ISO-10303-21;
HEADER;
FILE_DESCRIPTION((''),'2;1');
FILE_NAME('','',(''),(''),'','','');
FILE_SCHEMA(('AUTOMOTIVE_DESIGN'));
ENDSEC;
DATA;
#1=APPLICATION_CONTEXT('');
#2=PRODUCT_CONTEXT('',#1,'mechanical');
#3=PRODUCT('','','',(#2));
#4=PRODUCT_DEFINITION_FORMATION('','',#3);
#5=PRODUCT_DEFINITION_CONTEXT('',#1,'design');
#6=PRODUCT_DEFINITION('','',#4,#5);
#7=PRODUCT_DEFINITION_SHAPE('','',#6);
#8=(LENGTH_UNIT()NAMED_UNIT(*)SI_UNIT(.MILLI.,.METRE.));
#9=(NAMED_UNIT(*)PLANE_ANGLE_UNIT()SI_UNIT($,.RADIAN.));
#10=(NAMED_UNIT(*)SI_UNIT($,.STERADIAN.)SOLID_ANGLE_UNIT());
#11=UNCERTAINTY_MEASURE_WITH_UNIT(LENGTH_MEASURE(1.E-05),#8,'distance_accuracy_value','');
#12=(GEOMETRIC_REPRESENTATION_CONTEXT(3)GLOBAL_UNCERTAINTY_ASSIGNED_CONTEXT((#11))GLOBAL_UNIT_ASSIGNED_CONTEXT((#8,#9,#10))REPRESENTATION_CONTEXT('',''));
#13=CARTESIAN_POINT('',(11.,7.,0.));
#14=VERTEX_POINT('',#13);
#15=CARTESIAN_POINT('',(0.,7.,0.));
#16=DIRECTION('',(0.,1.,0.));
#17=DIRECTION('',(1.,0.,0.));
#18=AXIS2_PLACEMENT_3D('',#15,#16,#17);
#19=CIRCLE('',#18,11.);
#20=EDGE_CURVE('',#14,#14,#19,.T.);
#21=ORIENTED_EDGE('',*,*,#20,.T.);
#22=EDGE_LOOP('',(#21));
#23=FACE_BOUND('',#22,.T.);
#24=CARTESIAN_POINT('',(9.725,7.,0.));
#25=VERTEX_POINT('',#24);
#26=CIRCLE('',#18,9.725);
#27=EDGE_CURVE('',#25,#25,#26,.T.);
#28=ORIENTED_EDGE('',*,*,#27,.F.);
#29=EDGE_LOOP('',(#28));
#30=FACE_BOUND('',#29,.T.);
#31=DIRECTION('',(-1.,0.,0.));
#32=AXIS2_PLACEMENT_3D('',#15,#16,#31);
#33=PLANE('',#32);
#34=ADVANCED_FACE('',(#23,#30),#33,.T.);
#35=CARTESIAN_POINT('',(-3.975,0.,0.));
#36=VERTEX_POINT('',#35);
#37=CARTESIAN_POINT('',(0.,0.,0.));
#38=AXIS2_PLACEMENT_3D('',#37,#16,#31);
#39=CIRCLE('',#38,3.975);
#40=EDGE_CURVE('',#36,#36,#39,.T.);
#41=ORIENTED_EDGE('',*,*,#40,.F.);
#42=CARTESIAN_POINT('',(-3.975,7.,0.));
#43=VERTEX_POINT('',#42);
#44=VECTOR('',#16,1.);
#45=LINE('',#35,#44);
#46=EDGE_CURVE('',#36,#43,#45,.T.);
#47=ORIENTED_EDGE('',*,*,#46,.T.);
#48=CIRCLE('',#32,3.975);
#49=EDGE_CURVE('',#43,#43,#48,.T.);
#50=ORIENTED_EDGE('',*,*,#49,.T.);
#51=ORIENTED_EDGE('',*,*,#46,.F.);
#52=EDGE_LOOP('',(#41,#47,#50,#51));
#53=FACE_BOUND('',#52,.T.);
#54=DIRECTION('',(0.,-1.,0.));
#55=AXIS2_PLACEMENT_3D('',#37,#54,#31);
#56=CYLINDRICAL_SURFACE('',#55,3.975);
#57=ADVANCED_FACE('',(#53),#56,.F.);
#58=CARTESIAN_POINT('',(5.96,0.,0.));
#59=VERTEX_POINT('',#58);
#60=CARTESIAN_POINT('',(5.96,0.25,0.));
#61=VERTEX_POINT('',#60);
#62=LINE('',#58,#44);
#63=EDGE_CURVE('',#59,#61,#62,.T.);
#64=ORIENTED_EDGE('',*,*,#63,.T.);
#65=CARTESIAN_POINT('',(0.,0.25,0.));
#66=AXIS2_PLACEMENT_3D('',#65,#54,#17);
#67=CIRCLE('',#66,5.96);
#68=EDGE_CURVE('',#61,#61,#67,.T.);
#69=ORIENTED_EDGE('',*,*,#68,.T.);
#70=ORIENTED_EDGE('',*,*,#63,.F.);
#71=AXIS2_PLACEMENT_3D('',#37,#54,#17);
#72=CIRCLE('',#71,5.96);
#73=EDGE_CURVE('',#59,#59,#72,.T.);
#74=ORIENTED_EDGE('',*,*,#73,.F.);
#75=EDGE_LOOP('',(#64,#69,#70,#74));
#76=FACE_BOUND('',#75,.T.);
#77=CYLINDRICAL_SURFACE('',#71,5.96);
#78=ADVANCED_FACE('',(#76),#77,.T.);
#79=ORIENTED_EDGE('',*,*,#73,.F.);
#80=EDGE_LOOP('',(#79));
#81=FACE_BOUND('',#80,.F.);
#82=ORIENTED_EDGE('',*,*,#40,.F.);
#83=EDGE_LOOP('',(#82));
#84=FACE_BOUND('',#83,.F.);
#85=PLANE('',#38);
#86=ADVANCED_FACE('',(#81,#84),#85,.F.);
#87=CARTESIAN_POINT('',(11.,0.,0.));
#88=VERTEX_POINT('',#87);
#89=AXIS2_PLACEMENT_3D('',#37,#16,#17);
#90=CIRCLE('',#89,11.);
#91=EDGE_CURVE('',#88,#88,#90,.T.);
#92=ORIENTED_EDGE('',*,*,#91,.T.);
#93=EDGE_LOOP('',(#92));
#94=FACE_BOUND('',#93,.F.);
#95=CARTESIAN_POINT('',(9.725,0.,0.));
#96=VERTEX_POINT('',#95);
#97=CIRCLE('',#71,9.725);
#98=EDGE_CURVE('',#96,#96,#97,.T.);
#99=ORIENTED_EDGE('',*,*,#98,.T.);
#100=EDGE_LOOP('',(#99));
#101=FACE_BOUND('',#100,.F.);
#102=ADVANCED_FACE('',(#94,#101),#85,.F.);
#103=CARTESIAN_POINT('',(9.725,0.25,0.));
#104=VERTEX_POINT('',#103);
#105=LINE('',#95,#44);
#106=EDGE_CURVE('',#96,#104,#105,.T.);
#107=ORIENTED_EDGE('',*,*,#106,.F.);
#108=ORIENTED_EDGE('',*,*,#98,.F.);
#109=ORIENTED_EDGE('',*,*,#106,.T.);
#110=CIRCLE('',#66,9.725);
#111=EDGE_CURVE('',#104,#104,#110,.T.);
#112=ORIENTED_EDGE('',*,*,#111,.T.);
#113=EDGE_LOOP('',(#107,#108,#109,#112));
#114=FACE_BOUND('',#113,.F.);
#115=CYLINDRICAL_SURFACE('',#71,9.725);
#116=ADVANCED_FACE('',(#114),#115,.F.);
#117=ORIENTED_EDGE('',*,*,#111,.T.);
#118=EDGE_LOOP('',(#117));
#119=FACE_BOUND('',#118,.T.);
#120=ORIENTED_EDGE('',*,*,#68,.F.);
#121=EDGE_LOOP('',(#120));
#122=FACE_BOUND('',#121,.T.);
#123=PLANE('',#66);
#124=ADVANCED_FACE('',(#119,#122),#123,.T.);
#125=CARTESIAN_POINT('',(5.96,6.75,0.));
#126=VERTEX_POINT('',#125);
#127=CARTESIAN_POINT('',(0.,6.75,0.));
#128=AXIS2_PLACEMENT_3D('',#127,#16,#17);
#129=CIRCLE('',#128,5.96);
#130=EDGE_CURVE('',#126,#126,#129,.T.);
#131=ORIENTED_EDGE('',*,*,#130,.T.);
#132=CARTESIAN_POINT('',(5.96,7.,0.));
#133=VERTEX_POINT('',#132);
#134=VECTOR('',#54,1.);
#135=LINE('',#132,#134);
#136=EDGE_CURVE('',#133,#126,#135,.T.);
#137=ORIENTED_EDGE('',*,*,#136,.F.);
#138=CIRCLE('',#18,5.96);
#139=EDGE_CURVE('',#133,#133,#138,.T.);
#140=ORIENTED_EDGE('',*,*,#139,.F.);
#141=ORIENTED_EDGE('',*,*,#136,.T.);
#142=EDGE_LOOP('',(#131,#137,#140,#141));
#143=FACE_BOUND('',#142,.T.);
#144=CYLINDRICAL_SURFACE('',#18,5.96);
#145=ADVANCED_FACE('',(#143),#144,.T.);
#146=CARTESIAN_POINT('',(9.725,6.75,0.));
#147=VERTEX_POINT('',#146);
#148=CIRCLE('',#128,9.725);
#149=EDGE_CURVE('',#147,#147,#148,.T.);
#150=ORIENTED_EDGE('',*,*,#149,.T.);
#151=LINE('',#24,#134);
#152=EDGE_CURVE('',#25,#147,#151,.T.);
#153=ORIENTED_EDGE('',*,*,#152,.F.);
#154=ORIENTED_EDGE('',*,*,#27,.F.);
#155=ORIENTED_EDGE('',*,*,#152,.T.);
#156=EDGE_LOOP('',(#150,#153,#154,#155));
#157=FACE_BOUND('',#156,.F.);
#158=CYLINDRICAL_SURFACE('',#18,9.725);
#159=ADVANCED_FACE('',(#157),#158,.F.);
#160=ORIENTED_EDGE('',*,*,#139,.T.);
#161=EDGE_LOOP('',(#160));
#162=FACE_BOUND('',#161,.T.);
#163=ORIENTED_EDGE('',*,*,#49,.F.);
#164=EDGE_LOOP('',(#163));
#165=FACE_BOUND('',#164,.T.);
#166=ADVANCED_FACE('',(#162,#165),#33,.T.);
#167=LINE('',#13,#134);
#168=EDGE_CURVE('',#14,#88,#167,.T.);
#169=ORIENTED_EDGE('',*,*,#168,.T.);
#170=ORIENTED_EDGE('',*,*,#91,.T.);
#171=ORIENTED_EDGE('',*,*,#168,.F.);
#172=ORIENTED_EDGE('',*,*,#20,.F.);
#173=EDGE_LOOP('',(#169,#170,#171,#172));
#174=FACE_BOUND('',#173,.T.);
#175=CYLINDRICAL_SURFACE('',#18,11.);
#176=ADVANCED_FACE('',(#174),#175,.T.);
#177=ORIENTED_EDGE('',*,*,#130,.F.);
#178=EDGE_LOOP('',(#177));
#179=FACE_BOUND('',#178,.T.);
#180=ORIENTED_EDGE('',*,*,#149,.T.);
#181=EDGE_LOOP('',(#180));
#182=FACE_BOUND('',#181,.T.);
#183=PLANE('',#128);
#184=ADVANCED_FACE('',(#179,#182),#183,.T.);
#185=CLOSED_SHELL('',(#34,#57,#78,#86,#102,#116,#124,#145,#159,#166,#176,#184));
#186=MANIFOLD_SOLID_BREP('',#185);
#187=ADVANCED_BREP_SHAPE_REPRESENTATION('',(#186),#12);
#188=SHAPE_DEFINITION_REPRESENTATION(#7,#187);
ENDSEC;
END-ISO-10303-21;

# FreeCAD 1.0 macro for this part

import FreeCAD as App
import Part
import Sketcher
from FreeCAD import Vector
Q = App.Units.Quantity

doc = App.newDocument("Part")
body = doc.addObject("PartDesign::Body", "Body")

# Sketch on XZ plane
sketch1 = body.newObject("Sketcher::SketchObject", "Sketch")
sketch1.AttachmentSupport = (doc.getObject("XZ_Plane"), [""])
sketch1.MapMode = "FlatFace"
sketch1.addGeometry([
    Part.Circle(Vector(0, 0, 0), Vector(0, 0, 1), 6),
    Part.Circle(Vector(0, 0, 0), Vector(0, 0, 1), 4),
], False)
sketch1.addConstraint([
    Sketcher.Constraint("Coincident", 0, 3, -1, 1),
    Sketcher.Constraint("Coincident", 1, 3, -1, 1),
    Sketcher.Constraint("Diameter", 0, Q("11.93 mm")),
    Sketcher.Constraint("Diameter", 1, Q("7.95 mm")),
])
pad1 = body.newObject("PartDesign::Pad", "Pad")
pad1.Profile = sketch1
pad1.Length = 7
pad1.Reversed = True

# Sketch on XZ plane
sketch2 = body.newObject("Sketcher::SketchObject", "Sketch001")
sketch2.AttachmentSupport = (doc.getObject("XZ_Plane"), [""])
sketch2.MapMode = "FlatFace"
sketch2.AttachmentOffset = App.Placement(Vector(0, 0, -7), App.Rotation())
sketch2.addGeometry([
    Part.Circle(Vector(0, 0, 0), Vector(0, 0, 1), 11),
    Part.Circle(Vector(0, 0, 0), Vector(0, 0, 1), 6),
], False)
sketch2.addConstraint([
    Sketcher.Constraint("Coincident", 0, 3, -1, 1),
    Sketcher.Constraint("Coincident", 1, 3, -1, 1),
    Sketcher.Constraint("Diameter", 0, Q("22 mm")),
    Sketcher.Constraint("Diameter", 1, Q("11.93 mm")),
])
pad2 = body.newObject("PartDesign::Pad", "Pad001")
pad2.Profile = sketch2
pad2.Length = 7

# Sketch on XZ plane
sketch3 = body.newObject("Sketcher::SketchObject", "Sketch002")
sketch3.AttachmentSupport = (doc.getObject("XZ_Plane"), [""])
sketch3.MapMode = "FlatFace"
sketch3.addGeometry([
    Part.Circle(Vector(0, 0, 0), Vector(0, 0, 1), 10),
    Part.Circle(Vector(0, 0, 0), Vector(0, 0, 1), 6),
], False)
sketch3.addConstraint([
    Sketcher.Constraint("Coincident", 0, 3, -1, 1),
    Sketcher.Constraint("Coincident", 1, 3, -1, 1),
    Sketcher.Constraint("Diameter", 0, Q("19.45 mm")),
    Sketcher.Constraint("Diameter", 1, Q("11.92 mm")),
])
pocket1 = body.newObject("PartDesign::Pocket", "Pocket")
pocket1.Profile = sketch3
pocket1.Length = 0.25

# Sketch on XZ plane
sketch4 = body.newObject("Sketcher::SketchObject", "Sketch003")
sketch4.AttachmentSupport = (doc.getObject("XZ_Plane"), [""])
sketch4.MapMode = "FlatFace"
sketch4.AttachmentOffset = App.Placement(Vector(0, 0, -7), App.Rotation())
sketch4.addGeometry([
    Part.Circle(Vector(0, 0, 0), Vector(0, 0, 1), 10),
    Part.Circle(Vector(0, 0, 0), Vector(0, 0, 1), 6),
], False)
sketch4.addConstraint([
    Sketcher.Constraint("Coincident", 0, 3, -1, 1),
    Sketcher.Constraint("Coincident", 1, 3, -1, 1),
    Sketcher.Constraint("Diameter", 0, Q("19.45 mm")),
    Sketcher.Constraint("Diameter", 1, Q("11.92 mm")),
])
pocket2 = body.newObject("PartDesign::Pocket", "Pocket001")
pocket2.Profile = sketch4
pocket2.Length = 0.25
pocket2.Reversed = True

doc.recompute()
